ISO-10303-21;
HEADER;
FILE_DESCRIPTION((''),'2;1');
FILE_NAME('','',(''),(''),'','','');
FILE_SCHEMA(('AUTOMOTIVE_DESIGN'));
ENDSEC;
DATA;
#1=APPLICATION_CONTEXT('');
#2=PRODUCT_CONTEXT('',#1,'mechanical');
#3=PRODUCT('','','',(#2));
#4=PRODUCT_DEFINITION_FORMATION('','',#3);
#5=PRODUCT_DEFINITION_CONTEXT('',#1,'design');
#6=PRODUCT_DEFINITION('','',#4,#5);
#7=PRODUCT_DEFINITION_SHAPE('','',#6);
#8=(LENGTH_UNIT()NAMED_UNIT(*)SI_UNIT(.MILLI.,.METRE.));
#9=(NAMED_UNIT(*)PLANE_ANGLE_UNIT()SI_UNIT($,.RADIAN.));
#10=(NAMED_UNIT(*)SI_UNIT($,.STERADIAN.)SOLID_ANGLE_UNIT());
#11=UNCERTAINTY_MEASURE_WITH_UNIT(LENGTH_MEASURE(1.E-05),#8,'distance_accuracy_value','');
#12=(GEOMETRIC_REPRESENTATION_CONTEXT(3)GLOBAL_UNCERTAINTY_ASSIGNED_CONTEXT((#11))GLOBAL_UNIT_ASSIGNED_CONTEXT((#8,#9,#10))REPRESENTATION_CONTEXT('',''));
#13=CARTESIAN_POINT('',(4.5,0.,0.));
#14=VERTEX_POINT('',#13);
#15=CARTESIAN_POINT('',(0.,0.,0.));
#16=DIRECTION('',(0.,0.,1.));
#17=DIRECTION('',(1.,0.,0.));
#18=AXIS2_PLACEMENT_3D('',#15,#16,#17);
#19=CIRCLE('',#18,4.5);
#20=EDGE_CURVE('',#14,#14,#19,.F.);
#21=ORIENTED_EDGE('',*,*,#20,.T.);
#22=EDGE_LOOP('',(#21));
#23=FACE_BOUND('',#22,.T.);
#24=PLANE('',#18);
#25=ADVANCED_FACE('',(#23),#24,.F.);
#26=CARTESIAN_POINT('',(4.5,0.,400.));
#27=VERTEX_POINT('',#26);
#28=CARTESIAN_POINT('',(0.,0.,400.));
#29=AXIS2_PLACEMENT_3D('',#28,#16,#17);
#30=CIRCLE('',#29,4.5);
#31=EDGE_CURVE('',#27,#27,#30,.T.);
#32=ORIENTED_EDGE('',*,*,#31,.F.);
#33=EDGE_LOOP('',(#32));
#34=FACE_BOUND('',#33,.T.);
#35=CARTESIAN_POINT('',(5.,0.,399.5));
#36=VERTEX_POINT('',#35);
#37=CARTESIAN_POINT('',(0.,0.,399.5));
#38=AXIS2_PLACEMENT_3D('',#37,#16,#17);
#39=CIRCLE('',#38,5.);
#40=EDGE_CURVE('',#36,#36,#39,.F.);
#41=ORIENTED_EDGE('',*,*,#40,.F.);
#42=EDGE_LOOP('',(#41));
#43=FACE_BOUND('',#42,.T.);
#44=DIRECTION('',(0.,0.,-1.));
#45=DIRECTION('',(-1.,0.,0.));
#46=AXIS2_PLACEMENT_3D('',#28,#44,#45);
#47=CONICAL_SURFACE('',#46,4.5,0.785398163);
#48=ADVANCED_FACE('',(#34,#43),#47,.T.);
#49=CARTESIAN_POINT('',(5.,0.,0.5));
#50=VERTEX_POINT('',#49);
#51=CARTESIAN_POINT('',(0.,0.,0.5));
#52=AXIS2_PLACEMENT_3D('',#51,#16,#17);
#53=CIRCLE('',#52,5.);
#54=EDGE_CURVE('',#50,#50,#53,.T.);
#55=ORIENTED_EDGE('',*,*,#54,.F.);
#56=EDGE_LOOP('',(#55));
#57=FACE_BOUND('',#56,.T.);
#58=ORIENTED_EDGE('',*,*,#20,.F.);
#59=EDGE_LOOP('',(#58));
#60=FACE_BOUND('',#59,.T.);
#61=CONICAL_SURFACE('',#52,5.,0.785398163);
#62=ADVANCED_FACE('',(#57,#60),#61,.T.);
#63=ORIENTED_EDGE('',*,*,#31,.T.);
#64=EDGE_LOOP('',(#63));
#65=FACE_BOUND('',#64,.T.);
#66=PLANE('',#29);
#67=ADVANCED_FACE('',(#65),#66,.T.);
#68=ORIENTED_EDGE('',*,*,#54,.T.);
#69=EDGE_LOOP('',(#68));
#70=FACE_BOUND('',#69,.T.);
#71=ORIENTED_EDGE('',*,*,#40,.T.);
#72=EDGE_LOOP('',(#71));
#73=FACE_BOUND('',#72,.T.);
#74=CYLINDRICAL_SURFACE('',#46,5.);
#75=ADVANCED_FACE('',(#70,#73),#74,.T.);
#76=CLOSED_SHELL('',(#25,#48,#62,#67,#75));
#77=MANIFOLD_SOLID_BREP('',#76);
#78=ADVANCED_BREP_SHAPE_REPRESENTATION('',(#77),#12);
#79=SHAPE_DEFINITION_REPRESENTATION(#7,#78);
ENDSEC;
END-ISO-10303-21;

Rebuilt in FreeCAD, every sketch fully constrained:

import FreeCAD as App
import Part
import Sketcher


def edges_at(feature, points):
    """Names of the edges that pass closest to the given points."""
    edges = feature.Shape.Edges
    near = lambda p: min(range(len(edges)), key=lambda i: edges[i].distToShape(Part.Vertex(*p))[0])
    return sorted({f"Edge{near(p) + 1}" for p in points})

doc = App.newDocument("Part")
body = doc.addObject("PartDesign::Body", "Body")

# Sketch on XY plane
sketch1 = body.newObject("Sketcher::SketchObject", "Sketch")
sketch1.AttachmentSupport = (doc.getObject("XY_Plane"), [""])
sketch1.MapMode = "FlatFace"
sketch1.addGeometry(Part.Circle(App.Vector(0, 0, 0), App.Vector(0, 0, 1), 5), False)
sketch1.addConstraint([
    Sketcher.Constraint("Coincident", 0, 3, -1, 1),
    Sketcher.Constraint("Diameter", 0, 10.0),
])
pad1 = body.newObject("PartDesign::Pad", "Pad")
pad1.Profile = sketch1
pad1.Length = 400
doc.recompute()

chamfer = body.newObject("PartDesign::Chamfer", "Chamfer")
chamfer.Base = (pad1, edges_at(pad1, [(-5, 0, 0), (-5, 0, 400)]))
chamfer.Size = 0.5

doc.recompute()
